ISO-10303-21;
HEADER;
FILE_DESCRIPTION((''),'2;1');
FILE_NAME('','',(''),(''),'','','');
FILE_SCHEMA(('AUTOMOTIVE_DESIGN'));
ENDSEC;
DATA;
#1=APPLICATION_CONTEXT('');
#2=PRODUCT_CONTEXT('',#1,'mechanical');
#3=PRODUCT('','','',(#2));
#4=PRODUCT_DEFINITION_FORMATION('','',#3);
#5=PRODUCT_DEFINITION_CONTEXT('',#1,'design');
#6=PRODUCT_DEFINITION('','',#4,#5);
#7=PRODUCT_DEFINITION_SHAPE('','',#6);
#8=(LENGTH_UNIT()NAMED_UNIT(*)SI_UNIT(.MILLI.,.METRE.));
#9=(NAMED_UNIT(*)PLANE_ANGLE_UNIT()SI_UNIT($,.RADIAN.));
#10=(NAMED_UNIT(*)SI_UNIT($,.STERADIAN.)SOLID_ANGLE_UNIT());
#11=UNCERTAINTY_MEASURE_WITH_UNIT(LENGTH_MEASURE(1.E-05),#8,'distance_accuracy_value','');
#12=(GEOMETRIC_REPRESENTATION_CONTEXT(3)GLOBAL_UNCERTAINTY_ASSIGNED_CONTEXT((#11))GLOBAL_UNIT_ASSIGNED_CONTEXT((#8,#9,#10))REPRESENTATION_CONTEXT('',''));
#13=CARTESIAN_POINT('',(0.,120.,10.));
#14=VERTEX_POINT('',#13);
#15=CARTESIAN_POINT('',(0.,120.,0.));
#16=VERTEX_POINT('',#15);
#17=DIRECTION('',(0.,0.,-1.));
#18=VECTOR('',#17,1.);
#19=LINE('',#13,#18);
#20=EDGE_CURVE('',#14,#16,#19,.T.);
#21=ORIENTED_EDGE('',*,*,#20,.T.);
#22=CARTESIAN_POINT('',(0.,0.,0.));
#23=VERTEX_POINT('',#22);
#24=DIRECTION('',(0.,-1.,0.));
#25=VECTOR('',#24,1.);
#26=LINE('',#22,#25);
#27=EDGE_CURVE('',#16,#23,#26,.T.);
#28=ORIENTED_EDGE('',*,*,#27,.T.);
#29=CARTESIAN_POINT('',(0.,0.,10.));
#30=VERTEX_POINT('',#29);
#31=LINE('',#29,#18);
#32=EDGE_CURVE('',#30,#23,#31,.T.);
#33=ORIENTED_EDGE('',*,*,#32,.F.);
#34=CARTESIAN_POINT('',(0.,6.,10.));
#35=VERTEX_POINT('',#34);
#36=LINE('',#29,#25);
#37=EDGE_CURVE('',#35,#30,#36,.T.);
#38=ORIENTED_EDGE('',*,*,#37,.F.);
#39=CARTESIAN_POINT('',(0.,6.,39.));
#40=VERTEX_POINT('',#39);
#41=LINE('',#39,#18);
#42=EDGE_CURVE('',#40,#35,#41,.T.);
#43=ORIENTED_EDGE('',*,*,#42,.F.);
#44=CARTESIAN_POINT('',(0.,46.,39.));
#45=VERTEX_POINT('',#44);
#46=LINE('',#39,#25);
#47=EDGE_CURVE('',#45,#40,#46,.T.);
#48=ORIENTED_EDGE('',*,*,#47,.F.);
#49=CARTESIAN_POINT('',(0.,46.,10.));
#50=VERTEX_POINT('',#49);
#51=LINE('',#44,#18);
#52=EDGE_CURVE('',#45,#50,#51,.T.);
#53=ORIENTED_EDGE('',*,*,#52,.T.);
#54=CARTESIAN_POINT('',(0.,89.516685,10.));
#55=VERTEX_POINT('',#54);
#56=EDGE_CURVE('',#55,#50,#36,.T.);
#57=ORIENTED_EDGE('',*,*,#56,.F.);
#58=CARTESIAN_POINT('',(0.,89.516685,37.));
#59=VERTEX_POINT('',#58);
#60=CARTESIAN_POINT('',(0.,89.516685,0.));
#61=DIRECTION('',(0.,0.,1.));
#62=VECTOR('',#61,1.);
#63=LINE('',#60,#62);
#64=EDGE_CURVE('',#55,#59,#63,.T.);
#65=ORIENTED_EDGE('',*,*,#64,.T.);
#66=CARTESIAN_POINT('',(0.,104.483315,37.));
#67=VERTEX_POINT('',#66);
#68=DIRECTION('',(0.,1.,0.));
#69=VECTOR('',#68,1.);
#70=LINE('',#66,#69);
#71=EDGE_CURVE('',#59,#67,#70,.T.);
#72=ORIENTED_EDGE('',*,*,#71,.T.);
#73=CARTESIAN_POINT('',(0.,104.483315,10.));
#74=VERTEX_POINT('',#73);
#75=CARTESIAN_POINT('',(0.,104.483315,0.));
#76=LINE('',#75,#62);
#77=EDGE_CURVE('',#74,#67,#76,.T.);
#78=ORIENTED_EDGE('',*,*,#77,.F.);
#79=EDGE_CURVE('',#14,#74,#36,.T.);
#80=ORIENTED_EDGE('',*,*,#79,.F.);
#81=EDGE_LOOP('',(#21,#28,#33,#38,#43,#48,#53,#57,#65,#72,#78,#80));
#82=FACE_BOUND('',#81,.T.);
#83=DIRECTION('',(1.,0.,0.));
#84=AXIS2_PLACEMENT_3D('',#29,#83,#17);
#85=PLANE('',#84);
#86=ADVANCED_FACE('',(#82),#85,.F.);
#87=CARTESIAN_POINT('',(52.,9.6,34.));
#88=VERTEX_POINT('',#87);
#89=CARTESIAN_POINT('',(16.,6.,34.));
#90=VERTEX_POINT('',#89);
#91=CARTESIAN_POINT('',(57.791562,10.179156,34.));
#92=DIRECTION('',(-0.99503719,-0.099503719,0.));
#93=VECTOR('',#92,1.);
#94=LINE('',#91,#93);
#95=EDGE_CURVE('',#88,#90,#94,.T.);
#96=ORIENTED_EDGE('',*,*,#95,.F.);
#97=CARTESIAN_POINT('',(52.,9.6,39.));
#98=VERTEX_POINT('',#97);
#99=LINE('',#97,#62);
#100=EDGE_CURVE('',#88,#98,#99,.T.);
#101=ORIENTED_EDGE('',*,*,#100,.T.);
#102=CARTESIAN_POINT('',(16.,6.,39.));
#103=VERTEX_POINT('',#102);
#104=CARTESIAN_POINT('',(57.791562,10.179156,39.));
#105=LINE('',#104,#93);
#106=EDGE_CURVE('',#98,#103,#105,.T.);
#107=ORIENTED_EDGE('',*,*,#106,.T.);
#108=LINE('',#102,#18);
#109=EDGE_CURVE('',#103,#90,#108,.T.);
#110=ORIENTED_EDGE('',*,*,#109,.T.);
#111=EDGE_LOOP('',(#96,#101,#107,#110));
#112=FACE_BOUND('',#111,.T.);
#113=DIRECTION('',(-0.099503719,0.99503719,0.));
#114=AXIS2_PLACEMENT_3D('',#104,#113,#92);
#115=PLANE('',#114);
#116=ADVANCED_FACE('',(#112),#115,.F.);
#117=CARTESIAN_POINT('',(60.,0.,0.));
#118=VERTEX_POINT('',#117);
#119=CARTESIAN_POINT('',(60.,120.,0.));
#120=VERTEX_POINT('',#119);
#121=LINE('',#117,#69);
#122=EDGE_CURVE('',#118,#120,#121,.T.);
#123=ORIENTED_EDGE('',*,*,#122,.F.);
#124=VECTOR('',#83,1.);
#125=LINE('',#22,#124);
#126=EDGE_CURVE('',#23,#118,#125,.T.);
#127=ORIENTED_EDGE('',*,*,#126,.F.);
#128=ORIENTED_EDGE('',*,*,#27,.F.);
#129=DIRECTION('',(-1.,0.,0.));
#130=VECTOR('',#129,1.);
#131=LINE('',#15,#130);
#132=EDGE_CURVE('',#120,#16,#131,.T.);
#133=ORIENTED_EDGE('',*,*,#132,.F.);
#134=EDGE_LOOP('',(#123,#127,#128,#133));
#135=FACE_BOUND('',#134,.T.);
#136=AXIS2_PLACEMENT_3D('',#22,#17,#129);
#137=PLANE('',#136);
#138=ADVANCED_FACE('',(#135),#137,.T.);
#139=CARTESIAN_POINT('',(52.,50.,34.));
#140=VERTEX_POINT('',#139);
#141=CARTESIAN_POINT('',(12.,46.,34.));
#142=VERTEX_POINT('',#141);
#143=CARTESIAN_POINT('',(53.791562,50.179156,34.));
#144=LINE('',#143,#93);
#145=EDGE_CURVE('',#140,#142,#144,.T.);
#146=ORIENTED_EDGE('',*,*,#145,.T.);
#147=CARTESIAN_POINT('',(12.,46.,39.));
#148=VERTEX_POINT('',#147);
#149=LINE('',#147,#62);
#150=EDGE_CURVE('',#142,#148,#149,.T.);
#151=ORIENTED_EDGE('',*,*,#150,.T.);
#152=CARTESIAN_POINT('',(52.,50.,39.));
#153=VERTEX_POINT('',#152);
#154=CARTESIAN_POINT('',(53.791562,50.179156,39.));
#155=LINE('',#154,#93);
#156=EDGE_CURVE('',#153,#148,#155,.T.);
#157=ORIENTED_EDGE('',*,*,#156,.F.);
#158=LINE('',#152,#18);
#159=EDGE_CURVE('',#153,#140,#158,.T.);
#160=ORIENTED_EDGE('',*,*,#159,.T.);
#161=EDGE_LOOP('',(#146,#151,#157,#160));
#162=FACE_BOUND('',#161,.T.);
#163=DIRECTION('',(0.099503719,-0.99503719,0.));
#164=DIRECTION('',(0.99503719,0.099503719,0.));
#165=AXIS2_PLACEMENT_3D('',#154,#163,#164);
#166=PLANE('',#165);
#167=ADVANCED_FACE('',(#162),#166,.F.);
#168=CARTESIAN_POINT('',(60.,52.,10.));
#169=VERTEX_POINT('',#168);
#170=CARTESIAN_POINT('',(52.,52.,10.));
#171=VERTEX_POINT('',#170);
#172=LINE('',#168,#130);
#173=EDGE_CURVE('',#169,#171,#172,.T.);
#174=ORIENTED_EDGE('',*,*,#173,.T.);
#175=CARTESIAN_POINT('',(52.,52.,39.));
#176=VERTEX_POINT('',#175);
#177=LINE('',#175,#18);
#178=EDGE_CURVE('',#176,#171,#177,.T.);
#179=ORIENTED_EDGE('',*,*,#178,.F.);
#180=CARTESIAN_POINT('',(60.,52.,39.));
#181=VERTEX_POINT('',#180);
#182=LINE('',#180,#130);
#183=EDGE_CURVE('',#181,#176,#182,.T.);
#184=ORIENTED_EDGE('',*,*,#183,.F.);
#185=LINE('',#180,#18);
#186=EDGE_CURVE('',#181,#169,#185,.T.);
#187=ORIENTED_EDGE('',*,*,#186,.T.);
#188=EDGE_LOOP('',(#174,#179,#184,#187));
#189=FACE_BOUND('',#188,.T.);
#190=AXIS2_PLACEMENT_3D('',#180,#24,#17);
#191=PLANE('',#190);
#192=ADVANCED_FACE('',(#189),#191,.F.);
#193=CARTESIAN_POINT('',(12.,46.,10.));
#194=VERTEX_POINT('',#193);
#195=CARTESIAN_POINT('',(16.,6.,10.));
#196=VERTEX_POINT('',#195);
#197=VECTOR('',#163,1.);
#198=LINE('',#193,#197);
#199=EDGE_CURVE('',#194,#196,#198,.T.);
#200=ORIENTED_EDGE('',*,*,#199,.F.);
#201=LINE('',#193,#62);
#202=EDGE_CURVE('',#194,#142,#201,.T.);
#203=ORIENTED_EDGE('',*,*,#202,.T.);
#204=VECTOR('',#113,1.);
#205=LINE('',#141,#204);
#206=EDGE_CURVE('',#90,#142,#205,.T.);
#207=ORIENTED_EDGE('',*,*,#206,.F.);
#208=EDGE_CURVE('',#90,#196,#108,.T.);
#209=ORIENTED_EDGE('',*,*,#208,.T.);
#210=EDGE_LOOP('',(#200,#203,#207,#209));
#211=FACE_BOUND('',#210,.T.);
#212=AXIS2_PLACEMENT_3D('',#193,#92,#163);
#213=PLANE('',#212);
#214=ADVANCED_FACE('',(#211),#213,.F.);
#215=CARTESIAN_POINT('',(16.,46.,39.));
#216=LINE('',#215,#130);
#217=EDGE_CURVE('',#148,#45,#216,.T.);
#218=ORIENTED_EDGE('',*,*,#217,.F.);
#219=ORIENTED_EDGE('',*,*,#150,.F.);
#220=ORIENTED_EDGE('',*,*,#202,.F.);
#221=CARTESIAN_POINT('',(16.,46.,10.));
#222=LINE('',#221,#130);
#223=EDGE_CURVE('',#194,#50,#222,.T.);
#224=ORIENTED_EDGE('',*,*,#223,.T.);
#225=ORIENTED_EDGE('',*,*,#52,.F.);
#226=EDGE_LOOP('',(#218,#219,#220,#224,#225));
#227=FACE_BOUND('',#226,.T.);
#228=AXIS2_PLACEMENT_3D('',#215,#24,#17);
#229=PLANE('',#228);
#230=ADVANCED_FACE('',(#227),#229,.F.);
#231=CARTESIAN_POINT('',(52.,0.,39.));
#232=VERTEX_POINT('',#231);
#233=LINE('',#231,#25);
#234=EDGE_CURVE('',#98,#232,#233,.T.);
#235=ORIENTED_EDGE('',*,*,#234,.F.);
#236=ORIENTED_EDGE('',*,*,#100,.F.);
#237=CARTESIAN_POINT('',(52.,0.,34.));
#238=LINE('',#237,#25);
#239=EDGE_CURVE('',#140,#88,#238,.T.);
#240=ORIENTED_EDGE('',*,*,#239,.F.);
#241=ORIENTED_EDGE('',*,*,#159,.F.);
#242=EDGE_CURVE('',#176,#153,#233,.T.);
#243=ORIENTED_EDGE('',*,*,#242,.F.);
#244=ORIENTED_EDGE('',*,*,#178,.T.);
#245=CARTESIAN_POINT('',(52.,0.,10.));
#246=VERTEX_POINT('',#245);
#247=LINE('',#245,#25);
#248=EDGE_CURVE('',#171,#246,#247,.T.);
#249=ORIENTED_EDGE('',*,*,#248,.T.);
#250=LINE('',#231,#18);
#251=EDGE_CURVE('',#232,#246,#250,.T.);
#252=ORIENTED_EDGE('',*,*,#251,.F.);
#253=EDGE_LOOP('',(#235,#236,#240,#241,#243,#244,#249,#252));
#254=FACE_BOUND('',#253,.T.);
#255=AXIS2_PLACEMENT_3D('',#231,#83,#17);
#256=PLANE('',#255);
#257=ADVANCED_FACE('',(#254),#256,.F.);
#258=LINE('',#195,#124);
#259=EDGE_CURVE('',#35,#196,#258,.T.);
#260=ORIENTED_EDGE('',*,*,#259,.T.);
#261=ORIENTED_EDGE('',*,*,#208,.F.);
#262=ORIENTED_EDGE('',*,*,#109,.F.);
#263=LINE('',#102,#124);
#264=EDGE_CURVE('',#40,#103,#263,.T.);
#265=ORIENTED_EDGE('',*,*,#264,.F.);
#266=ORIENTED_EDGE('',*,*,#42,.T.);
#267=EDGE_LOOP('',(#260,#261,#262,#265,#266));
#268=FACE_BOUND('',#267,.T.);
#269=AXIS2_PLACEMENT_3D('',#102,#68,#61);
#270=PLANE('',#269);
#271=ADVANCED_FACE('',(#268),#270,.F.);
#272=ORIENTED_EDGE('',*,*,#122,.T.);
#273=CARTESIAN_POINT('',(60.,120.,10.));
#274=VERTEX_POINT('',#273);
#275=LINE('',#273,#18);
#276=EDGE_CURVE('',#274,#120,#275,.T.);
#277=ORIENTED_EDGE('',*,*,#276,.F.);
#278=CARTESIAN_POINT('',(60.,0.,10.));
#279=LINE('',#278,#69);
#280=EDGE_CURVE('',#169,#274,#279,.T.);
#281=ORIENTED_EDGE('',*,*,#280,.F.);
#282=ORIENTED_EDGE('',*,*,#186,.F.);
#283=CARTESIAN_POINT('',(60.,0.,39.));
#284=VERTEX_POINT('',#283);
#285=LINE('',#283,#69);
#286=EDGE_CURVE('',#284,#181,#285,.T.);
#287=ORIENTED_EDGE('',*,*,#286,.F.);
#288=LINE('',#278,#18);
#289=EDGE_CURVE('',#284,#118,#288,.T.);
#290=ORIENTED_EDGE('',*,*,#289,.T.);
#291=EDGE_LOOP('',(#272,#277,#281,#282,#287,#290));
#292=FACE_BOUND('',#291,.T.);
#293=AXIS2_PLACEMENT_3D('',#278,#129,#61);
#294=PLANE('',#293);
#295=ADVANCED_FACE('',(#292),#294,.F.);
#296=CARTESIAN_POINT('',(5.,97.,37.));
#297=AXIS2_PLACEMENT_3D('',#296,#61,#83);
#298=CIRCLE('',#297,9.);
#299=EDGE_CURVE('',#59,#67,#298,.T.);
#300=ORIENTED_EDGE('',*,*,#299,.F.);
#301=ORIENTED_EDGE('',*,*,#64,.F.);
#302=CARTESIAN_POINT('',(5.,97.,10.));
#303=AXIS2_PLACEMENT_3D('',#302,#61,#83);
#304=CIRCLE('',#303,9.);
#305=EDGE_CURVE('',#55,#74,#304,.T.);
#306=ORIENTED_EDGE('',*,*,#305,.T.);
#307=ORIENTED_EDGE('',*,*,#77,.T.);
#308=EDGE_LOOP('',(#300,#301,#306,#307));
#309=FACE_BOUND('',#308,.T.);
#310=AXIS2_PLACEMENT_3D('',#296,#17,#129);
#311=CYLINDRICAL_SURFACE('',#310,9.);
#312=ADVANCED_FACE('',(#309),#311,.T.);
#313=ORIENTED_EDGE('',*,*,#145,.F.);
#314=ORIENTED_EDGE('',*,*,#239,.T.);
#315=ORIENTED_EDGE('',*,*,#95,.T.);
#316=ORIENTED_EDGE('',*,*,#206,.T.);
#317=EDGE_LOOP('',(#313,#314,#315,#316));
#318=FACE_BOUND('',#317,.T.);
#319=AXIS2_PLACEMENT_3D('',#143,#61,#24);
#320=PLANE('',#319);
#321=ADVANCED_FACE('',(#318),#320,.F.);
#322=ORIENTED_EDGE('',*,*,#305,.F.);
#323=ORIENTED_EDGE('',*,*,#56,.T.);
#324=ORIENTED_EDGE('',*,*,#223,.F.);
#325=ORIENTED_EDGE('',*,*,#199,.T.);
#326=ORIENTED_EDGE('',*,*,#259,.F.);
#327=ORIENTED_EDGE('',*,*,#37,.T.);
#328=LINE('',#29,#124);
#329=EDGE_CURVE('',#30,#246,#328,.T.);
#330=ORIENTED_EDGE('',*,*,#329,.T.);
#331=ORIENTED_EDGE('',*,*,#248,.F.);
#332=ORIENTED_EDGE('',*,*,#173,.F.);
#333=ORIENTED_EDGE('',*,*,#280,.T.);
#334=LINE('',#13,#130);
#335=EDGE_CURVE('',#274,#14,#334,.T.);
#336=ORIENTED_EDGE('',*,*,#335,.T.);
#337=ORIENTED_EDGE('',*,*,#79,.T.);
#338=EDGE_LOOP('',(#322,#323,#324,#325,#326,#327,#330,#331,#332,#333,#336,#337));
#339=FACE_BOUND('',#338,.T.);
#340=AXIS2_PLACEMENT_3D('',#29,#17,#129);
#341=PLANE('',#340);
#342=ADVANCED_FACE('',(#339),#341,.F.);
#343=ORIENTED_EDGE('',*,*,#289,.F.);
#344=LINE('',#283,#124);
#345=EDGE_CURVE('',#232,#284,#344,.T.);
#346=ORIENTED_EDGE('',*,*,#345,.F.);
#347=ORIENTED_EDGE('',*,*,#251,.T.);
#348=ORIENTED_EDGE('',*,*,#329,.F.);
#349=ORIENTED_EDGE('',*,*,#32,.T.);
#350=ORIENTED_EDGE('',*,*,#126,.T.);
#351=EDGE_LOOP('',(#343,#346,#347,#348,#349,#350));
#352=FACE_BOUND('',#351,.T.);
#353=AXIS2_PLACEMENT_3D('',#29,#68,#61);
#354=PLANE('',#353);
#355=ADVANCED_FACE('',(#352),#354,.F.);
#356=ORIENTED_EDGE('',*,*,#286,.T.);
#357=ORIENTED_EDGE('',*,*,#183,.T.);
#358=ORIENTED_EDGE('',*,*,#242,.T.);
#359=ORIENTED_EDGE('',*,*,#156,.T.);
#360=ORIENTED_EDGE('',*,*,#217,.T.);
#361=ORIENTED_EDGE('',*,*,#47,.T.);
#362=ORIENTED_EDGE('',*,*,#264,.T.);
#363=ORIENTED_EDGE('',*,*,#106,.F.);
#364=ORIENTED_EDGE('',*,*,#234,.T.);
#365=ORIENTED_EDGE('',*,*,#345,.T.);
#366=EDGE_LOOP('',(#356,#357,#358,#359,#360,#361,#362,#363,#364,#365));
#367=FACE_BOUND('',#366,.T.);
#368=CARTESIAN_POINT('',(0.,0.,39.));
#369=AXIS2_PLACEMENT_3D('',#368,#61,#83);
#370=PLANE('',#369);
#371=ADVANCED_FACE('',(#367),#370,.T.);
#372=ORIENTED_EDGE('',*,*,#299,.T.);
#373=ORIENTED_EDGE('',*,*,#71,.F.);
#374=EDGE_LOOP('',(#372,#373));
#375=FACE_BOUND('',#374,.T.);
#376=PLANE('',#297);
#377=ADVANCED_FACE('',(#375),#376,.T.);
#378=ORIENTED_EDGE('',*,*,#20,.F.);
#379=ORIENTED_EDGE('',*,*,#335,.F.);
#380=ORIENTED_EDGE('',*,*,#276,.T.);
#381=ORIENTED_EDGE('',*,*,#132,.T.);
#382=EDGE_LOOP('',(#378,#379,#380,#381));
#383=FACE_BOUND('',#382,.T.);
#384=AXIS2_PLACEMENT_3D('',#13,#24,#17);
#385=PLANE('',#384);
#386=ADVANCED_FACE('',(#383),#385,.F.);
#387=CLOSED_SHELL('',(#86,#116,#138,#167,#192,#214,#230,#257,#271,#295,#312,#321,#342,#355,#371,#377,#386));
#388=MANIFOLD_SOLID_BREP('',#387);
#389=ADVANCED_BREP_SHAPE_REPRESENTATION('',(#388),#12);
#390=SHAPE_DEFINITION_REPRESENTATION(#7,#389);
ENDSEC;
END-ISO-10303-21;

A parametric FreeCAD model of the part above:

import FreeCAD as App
import Part
import Sketcher

V = App.Vector

doc = App.newDocument("Part")
body = doc.addObject("PartDesign::Body", "Body")

sketch1 = body.newObject("Sketcher::SketchObject", "Sketch")
sketch1.AttachmentSupport = (doc.getObject("XY_Plane"), [""])
sketch1.MapMode = "FlatFace"
sketch1.addGeometry([
    Part.LineSegment(V(0, 120, 0), V(0, 0, 0)),
    Part.LineSegment(V(0, 0, 0), V(60, 0, 0)),
    Part.LineSegment(V(60, 0, 0), V(60, 120, 0)),
    Part.LineSegment(V(60, 120, 0), V(0, 120, 0)),
], False)
sketch1.addConstraint([
    Sketcher.Constraint("Coincident", 0, 2, 1, 1),
    Sketcher.Constraint("Coincident", 1, 2, 2, 1),
    Sketcher.Constraint("Coincident", 2, 2, 3, 1),
    Sketcher.Constraint("Coincident", 3, 2, 0, 1),
    Sketcher.Constraint("Vertical", 0),
    Sketcher.Constraint("Horizontal", 1),
    Sketcher.Constraint("Vertical", 2),
    Sketcher.Constraint("Horizontal", 3),
    Sketcher.Constraint("Coincident", 0, 2, -1, 1),
    Sketcher.Constraint("DistanceX", 1, 1, 1, 2, 60.0),
    Sketcher.Constraint("DistanceY", 0, 2, 0, 1, 120.0),
])
pad1 = body.newObject("PartDesign::Pad", "Pad")
pad1.Profile = sketch1
pad1.Length = 10

sketch2 = body.newObject("Sketcher::SketchObject", "Sketch001")
sketch2.AttachmentSupport = (doc.getObject("XY_Plane"), [""])
sketch2.MapMode = "FlatFace"
sketch2.AttachmentOffset = App.Placement(V(0, 0, 10), App.Rotation())
sketch2.addGeometry(Part.Circle(V(5, 97, 0), V(0, 0, 1), 9), False)
sketch2.addConstraint([
    Sketcher.Constraint("Diameter", 0, 18.0),
    Sketcher.Constraint("DistanceX", -1, 1, 0, 3, 5.0),
    Sketcher.Constraint("DistanceY", -1, 1, 0, 3, 97.0),
])
pad2 = body.newObject("PartDesign::Pad", "Pad001")
pad2.Profile = sketch2
pad2.Length = 27

sketch3 = body.newObject("Sketcher::SketchObject", "Sketch002")
sketch3.AttachmentSupport = (doc.getObject("XY_Plane"), [""])
sketch3.MapMode = "FlatFace"
sketch3.AttachmentOffset = App.Placement(V(0, 0, 37), App.Rotation())
sketch3.addGeometry([
    Part.LineSegment(V(0, 90, 0), V(0, 104, 0)),
    Part.LineSegment(V(0, 104, 0), V(-21, 107, 0)),
    Part.LineSegment(V(-21, 107, 0), V(-21, 90, 0)),
    Part.LineSegment(V(-21, 90, 0), V(0, 90, 0)),
], False)
sketch3.addConstraint([
    Sketcher.Constraint("Coincident", 0, 2, 1, 1),
    Sketcher.Constraint("Coincident", 1, 2, 2, 1),
    Sketcher.Constraint("Coincident", 2, 2, 3, 1),
    Sketcher.Constraint("Coincident", 3, 2, 0, 1),
    Sketcher.Constraint("Vertical", 0),
    Sketcher.Constraint("Vertical", 2),
    Sketcher.Constraint("Horizontal", 3),
    Sketcher.Constraint("PointOnObject", 0, 2, -2),
    Sketcher.Constraint("DistanceX", 3, 1, 3, 2, 21.075422),
    Sketcher.Constraint("DistanceY", 0, 1, 0, 2, 14.96663),
    Sketcher.Constraint("DistanceY", 2, 2, 2, 1, 17.481665),
    Sketcher.Constraint("DistanceY", -1, 1, 1, 2, 106.99835),
])
pocket1 = body.newObject("PartDesign::Pocket", "Pocket")
pocket1.Profile = sketch3
pocket1.Type = "ThroughAll"

sketch4 = body.newObject("Sketcher::SketchObject", "Sketch003")
sketch4.AttachmentSupport = (doc.getObject("XY_Plane"), [""])
sketch4.MapMode = "FlatFace"
sketch4.AttachmentOffset = App.Placement(V(0, 0, 10), App.Rotation())
sketch4.addGeometry([
    Part.LineSegment(V(0, 46, 0), V(0, 6, 0)),
    Part.LineSegment(V(0, 6, 0), V(16, 6, 0)),
    Part.LineSegment(V(16, 6, 0), V(16, 46, 0)),
    Part.LineSegment(V(16, 46, 0), V(0, 46, 0)),
], False)
sketch4.addConstraint([
    Sketcher.Constraint("Coincident", 0, 2, 1, 1),
    Sketcher.Constraint("Coincident", 1, 2, 2, 1),
    Sketcher.Constraint("Coincident", 2, 2, 3, 1),
    Sketcher.Constraint("Coincident", 3, 2, 0, 1),
    Sketcher.Constraint("Vertical", 0),
    Sketcher.Constraint("Horizontal", 1),
    Sketcher.Constraint("Vertical", 2),
    Sketcher.Constraint("Horizontal", 3),
    Sketcher.Constraint("PointOnObject", 0, 2, -2),
    Sketcher.Constraint("DistanceX", 1, 1, 1, 2, 16.0),
    Sketcher.Constraint("DistanceY", 0, 2, 0, 1, 40.0),
    Sketcher.Constraint("DistanceY", -1, 1, 0, 2, 6.0),
])
pad3 = body.newObject("PartDesign::Pad", "Pad002")
pad3.Profile = sketch4
pad3.Length = 29

sketch5 = body.newObject("Sketcher::SketchObject", "Sketch004")
sketch5.AttachmentSupport = (doc.getObject("XY_Plane"), [""])
sketch5.MapMode = "FlatFace"
sketch5.AttachmentOffset = App.Placement(V(0, 0, 10), App.Rotation())
sketch5.addGeometry([
    Part.LineSegment(V(52, 52, 0), V(52, 0, 0)),
    Part.LineSegment(V(52, 0, 0), V(60, 0, 0)),
    Part.LineSegment(V(60, 0, 0), V(60, 52, 0)),
    Part.LineSegment(V(60, 52, 0), V(52, 52, 0)),
], False)
sketch5.addConstraint([
    Sketcher.Constraint("Coincident", 0, 2, 1, 1),
    Sketcher.Constraint("Coincident", 1, 2, 2, 1),
    Sketcher.Constraint("Coincident", 2, 2, 3, 1),
    Sketcher.Constraint("Coincident", 3, 2, 0, 1),
    Sketcher.Constraint("Vertical", 0),
    Sketcher.Constraint("Horizontal", 1),
    Sketcher.Constraint("Vertical", 2),
    Sketcher.Constraint("Horizontal", 3),
    Sketcher.Constraint("PointOnObject", 0, 2, -1),
    Sketcher.Constraint("DistanceX", 1, 1, 1, 2, 8.0),
    Sketcher.Constraint("DistanceY", 0, 2, 0, 1, 52.0),
    Sketcher.Constraint("DistanceX", -1, 1, 0, 2, 52.0),
])
pad4 = body.newObject("PartDesign::Pad", "Pad003")
pad4.Profile = sketch5
pad4.Length = 29

sketch6 = body.newObject("Sketcher::SketchObject", "Sketch005")
sketch6.AttachmentSupport = (doc.getObject("XY_Plane"), [""])
sketch6.MapMode = "FlatFace"
sketch6.AttachmentOffset = App.Placement(V(0, 0, 39), App.Rotation())
sketch6.addGeometry([
    Part.LineSegment(V(16, 46, 0), V(12, 46, 0)),
    Part.LineSegment(V(12, 46, 0), V(16, 6, 0)),
    Part.LineSegment(V(16, 6, 0), V(16, 46, 0)),
], False)
sketch6.addConstraint([
    Sketcher.Constraint("Coincident", 0, 2, 1, 1),
    Sketcher.Constraint("Coincident", 1, 2, 2, 1),
    Sketcher.Constraint("Coincident", 2, 2, 0, 1),
    Sketcher.Constraint("Horizontal", 0),
    Sketcher.Constraint("Vertical", 2),
    Sketcher.Constraint("DistanceX", 0, 2, 0, 1, 4.0),
    Sketcher.Constraint("DistanceY", 2, 1, 2, 2, 40.0),
    Sketcher.Constraint("DistanceX", -1, 1, 0, 2, 12.0),
    Sketcher.Constraint("DistanceY", -1, 1, 0, 2, 46.0),
])
pocket2 = body.newObject("PartDesign::Pocket", "Pocket001")
pocket2.Profile = sketch6
pocket2.Length = 29

sketch7 = body.newObject("Sketcher::SketchObject", "Sketch006")
sketch7.Placement = App.Placement(V(16.435644, 1.643564, 0), App.Rotation(V(0, 0, -1), V(-0.099503719, 0.99503719, 0), V(0.99503719, 0.099503719, 0), "ZXY"))
sketch7.addGeometry([
    Part.LineSegment(V(-39, 45, 0), V(-39, 4, 0)),
    Part.LineSegment(V(-39, 4, 0), V(-34, 4, 0)),
    Part.LineSegment(V(-34, 4, 0), V(-34, 45, 0)),
    Part.LineSegment(V(-34, 45, 0), V(-39, 45, 0)),
], False)
sketch7.addConstraint([
    Sketcher.Constraint("Coincident", 0, 2, 1, 1),
    Sketcher.Constraint("Coincident", 1, 2, 2, 1),
    Sketcher.Constraint("Coincident", 2, 2, 3, 1),
    Sketcher.Constraint("Coincident", 3, 2, 0, 1),
    Sketcher.Constraint("Vertical", 0),
    Sketcher.Constraint("Horizontal", 1),
    Sketcher.Constraint("Vertical", 2),
    Sketcher.Constraint("Horizontal", 3),
    Sketcher.Constraint("DistanceX", 1, 1, 1, 2, 5.0),
    Sketcher.Constraint("DistanceX", 0, 2, -1, 1, 39.0),
    Sketcher.Constraint("DistanceY", 0, 2, 0, 1, 40.199502),
    Sketcher.Constraint("DistanceY", -1, 1, 0, 2, 4.378164),
])
pad5 = body.newObject("PartDesign::Pad", "Pad004")
pad5.Profile = sketch7
pad5.Length = 42

doc.recompute()
